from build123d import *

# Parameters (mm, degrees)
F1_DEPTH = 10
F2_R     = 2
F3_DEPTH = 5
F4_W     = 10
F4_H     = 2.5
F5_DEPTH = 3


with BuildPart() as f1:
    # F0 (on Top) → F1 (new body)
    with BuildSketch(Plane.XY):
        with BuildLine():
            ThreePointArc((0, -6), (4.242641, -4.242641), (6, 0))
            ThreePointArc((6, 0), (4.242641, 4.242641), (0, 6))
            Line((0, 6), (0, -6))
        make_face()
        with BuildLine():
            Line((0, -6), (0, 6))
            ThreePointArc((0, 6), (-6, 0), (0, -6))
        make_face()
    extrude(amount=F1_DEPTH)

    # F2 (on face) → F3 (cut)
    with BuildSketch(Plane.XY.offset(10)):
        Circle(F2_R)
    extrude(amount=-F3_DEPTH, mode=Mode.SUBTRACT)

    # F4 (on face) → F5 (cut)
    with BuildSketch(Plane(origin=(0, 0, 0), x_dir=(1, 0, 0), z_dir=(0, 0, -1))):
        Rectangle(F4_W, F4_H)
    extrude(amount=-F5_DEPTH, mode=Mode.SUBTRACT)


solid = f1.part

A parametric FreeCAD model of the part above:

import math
import FreeCAD as App
import Part
import Sketcher
from FreeCAD import Vector
Q = App.Units.Quantity


def add_polygon(sketch, points):
    """Adds a closed chain of lines whose ends are joined by coincident constraints."""
    first, n = sketch.GeometryCount, len(points)
    for a, b in zip(points, points[1:] + points[:1]):
        sketch.addGeometry(Part.LineSegment(App.Vector(*a, 0), App.Vector(*b, 0)), False)
    for i in range(n):
        sketch.addConstraint(Sketcher.Constraint("Coincident", first + i, 2, first + (i + 1) % n, 1))

doc = App.newDocument("Part")
params = doc.addObject("Spreadsheet::Sheet", "Params")
for row, (alias, value) in enumerate([
    ("sketch1_radius", "5.999999 mm"),
    ("pad1_length", "10 mm"),
    ("sketch2_diameter", "4 mm"),
    ("pocket1_length", "5 mm"),
    ("sketch3_width", "10 mm"),
    ("sketch3_height", "2.5 mm"),
    ("pocket2_length", "3 mm"),
], start=1):
    params.set(f"A{row}", alias)
    params.set(f"B{row}", "=" + value)
    params.setAlias(f"B{row}", alias)

body = doc.addObject("PartDesign::Body", "Body")

# Sketch on XY plane
sketch1 = body.newObject("Sketcher::SketchObject", "Sketch")
sketch1.AttachmentSupport = (doc.getObject("XY_Plane"), [""])
sketch1.MapMode = "FlatFace"
sketch1.addGeometry([
    Part.ArcOfCircle(Part.Circle(Vector(0, 0, 0), Vector(0, 0, 1), 6), math.radians(-90), math.radians(0)),
    Part.ArcOfCircle(Part.Circle(Vector(0, 0, 0), Vector(0, 0, 1), 6), math.radians(0), math.radians(90)),
    Part.ArcOfCircle(Part.Circle(Vector(0, 0, 0), Vector(0, 0, 1), 6), math.radians(90), math.radians(270)),
], False)
sketch1.addConstraint([
    Sketcher.Constraint("Tangent", 0, 2, 1, 1),
    Sketcher.Constraint("Tangent", 1, 2, 2, 1),
    Sketcher.Constraint("Tangent", 2, 2, 0, 1),
    Sketcher.Constraint("Coincident", 0, 3, -1, 1),
    Sketcher.Constraint("PointOnObject", 0, 2, -1),
    Sketcher.Constraint("PointOnObject", 1, 2, -2),
    Sketcher.Constraint("PointOnObject", 2, 2, -2),
    Sketcher.Constraint("Radius", 0, Q("5.999999 mm")),
])
sketch1.setExpression("Constraints[7]", "Params.sketch1_radius")
pad1 = body.newObject("PartDesign::Pad", "Pad")
pad1.Profile = sketch1
pad1.setExpression("Length", "Params.pad1_length")

# Sketch on XY plane
sketch2 = body.newObject("Sketcher::SketchObject", "Sketch001")
sketch2.AttachmentSupport = (doc.getObject("XY_Plane"), [""])
sketch2.MapMode = "FlatFace"
sketch2.AttachmentOffset = App.Placement(Vector(0, 0, 10), App.Rotation())
sketch2.addGeometry(Part.Circle(Vector(0, 0, 0), Vector(0, 0, 1), 2), False)
sketch2.addConstraint([
    Sketcher.Constraint("Coincident", 0, 3, -1, 1),
    Sketcher.Constraint("Diameter", 0, Q("4 mm")),
])
sketch2.setExpression("Constraints[1]", "Params.sketch2_diameter")
pocket1 = body.newObject("PartDesign::Pocket", "Pocket")
pocket1.Profile = sketch2
pocket1.setExpression("Length", "Params.pocket1_length")

# Sketch on XY plane
sketch3 = body.newObject("Sketcher::SketchObject", "Sketch002")
sketch3.AttachmentSupport = (doc.getObject("XY_Plane"), [""])
sketch3.MapMode = "FlatFace"
add_polygon(sketch3, [(-5, -1.2), (-5, 1.2), (5, 1.2), (5, -1.2)])  # lines 0-3
sketch3.addConstraint([
    Sketcher.Constraint("Vertical", 0),
    Sketcher.Constraint("Horizontal", 1),
    Sketcher.Constraint("Vertical", 2),
    Sketcher.Constraint("Horizontal", 3),
    Sketcher.Constraint("Symmetric", 0, 2, 2, 2, -1, 1),
    Sketcher.Constraint("DistanceX", 1, 1, 1, 2, Q("10 mm")),
    Sketcher.Constraint("DistanceY", 0, 1, 0, 2, Q("2.5 mm")),
])
sketch3.setExpression("Constraints[9]", "Params.sketch3_width")
sketch3.setExpression("Constraints[10]", "Params.sketch3_height")
pocket2 = body.newObject("PartDesign::Pocket", "Pocket001")
pocket2.Profile = sketch3
pocket2.setExpression("Length", "Params.pocket2_length")
pocket2.Reversed = True

doc.recompute()
